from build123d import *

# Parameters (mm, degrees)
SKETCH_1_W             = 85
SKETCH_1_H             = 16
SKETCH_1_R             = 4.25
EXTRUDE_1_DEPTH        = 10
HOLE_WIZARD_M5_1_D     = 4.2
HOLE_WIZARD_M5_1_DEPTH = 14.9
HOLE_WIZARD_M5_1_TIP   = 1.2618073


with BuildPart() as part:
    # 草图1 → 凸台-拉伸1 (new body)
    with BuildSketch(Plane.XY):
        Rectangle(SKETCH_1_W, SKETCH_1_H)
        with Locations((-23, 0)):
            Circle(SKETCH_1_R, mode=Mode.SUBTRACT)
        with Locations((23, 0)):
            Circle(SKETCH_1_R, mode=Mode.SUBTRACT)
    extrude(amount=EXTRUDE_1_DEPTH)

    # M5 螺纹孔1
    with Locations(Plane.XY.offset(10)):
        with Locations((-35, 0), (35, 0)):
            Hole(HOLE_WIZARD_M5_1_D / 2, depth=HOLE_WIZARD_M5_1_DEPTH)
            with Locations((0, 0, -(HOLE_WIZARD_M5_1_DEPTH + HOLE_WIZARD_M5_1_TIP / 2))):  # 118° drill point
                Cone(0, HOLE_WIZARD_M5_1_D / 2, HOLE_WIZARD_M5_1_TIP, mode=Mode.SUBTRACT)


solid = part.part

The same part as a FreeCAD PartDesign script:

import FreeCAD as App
import Part
import Sketcher

V = App.Vector
Q = App.Units.Quantity


def add_polygon(sketch, points):
    """Adds a closed chain of lines whose ends are joined by coincident constraints."""
    first, n = sketch.GeometryCount, len(points)
    for a, b in zip(points, points[1:] + points[:1]):
        sketch.addGeometry(Part.LineSegment(App.Vector(*a, 0), App.Vector(*b, 0)), False)
    for i in range(n):
        sketch.addConstraint(Sketcher.Constraint("Coincident", first + i, 2, first + (i + 1) % n, 1))

doc = App.newDocument("Part")
body = doc.addObject("PartDesign::Body", "Body")

sketch1 = body.newObject("Sketcher::SketchObject", "Sketch")
sketch1.AttachmentSupport = (doc.getObject("XY_Plane"), [""])
sketch1.MapMode = "FlatFace"
add_polygon(sketch1, [(-42.5, 8), (-42.5, -8), (42.5, -8), (42.5, 8)])
sketch1.addGeometry(Part.Circle(V(-23, 0, 0), V(0, 0, 1), 4.25), False)
sketch1.addGeometry(Part.Circle(V(23, 0, 0), V(0, 0, 1), 4.25), False)
sketch1.addConstraint(Sketcher.Constraint("Vertical", 0))
sketch1.addConstraint(Sketcher.Constraint("Horizontal", 1))
sketch1.addConstraint(Sketcher.Constraint("Vertical", 2))
sketch1.addConstraint(Sketcher.Constraint("Horizontal", 3))
sketch1.addConstraint(Sketcher.Constraint("Equal", 4, 5))
sketch1.addConstraint(Sketcher.Constraint("Symmetric", 4, 3, 5, 3, -1, 1))
sketch1.addConstraint(Sketcher.Constraint("Symmetric", 0, 2, 2, 2, -1, 1))
sketch1.addConstraint(Sketcher.Constraint("PointOnObject", 4, 3, -1))
sketch1.addConstraint(Sketcher.Constraint("Diameter", 4, Q("8.5 mm")))
sketch1.addConstraint(Sketcher.Constraint("DistanceX", 1, 1, 1, 2, Q("85 mm")))
sketch1.addConstraint(Sketcher.Constraint("DistanceY", 0, 2, 0, 1, Q("16 mm")))
sketch1.addConstraint(Sketcher.Constraint("DistanceX", 4, 3, -1, 1, Q("23 mm")))
pad1 = body.newObject("PartDesign::Pad", "Pad")
pad1.Profile = sketch1
pad1.Length = 10

sketch2 = body.newObject("Sketcher::SketchObject", "Sketch001")
sketch2.AttachmentSupport = (doc.getObject("XY_Plane"), [""])
sketch2.MapMode = "FlatFace"
sketch2.AttachmentOffset = App.Placement(V(0, 0, 10), App.Rotation())
sketch2.addGeometry(Part.Circle(V(-35, 0, 0), V(0, 0, 1), 2.1), False)
sketch2.addGeometry(Part.Circle(V(35, 0, 0), V(0, 0, 1), 2.1), False)
sketch2.addConstraint(Sketcher.Constraint("Equal", 0, 1))
sketch2.addConstraint(Sketcher.Constraint("Symmetric", 0, 3, 1, 3, -1, 1))
sketch2.addConstraint(Sketcher.Constraint("PointOnObject", 0, 3, -1))
sketch2.addConstraint(Sketcher.Constraint("Diameter", 0, Q("4.2 mm")))
sketch2.addConstraint(Sketcher.Constraint("DistanceX", 0, 3, -1, 1, Q("35 mm")))
doc.recompute()
hole = body.newObject("PartDesign::Hole", "Hole")
hole.Profile = sketch2
hole.ThreadType = "None"
hole.Diameter = 4.2
hole.DepthType = "Dimension"
hole.Depth = 14.9
hole.DrillPoint = "Angled"
hole.DrillPointAngle = 118

doc.recompute()
